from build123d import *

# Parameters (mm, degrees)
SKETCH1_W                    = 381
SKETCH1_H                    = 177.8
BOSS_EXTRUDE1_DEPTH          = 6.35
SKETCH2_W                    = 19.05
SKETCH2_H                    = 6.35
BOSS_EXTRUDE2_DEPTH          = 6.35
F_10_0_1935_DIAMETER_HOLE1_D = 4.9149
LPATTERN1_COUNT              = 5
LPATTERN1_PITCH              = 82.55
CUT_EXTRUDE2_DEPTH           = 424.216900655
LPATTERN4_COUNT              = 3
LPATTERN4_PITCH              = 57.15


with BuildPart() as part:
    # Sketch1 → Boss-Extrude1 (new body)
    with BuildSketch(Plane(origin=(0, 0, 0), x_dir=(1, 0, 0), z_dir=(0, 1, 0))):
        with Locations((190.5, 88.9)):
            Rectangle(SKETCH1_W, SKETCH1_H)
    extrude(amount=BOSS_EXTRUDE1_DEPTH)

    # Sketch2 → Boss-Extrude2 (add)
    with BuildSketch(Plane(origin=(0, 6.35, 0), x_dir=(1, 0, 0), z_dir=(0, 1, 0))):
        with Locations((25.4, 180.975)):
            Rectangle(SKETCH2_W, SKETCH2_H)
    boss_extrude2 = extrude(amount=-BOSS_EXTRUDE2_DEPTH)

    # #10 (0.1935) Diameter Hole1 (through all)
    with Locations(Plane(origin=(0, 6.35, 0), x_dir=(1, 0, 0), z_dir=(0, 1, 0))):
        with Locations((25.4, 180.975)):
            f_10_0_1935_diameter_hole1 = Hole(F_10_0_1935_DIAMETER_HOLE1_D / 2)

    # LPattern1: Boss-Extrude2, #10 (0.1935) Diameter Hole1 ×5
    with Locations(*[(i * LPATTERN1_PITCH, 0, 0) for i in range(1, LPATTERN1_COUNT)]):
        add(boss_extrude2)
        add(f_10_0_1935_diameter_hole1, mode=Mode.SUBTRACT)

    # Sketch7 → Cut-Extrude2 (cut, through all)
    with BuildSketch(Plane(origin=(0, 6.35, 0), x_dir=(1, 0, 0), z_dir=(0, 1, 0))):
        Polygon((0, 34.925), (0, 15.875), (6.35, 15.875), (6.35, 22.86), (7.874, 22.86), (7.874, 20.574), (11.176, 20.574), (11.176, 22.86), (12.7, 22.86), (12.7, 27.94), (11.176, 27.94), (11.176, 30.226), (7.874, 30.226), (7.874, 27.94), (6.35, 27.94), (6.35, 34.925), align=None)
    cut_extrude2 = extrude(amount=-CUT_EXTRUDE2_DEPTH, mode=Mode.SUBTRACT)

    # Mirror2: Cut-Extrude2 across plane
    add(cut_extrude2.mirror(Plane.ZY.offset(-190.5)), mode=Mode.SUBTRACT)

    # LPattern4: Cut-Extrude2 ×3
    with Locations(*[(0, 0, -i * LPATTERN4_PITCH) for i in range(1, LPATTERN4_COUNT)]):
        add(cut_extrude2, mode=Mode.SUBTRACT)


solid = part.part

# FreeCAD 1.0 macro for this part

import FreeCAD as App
import Part
import Sketcher

V = App.Vector
Q = App.Units.Quantity


def add_polygon(sketch, points):
    """Adds a closed chain of lines whose ends are joined by coincident constraints."""
    first, n = sketch.GeometryCount, len(points)
    for a, b in zip(points, points[1:] + points[:1]):
        sketch.addGeometry(Part.LineSegment(App.Vector(*a, 0), App.Vector(*b, 0)), False)
    for i in range(n):
        sketch.addConstraint(Sketcher.Constraint("Coincident", first + i, 2, first + (i + 1) % n, 1))

doc = App.newDocument("Part")
body = doc.addObject("PartDesign::Body", "Body")

sketch1 = body.newObject("Sketcher::SketchObject", "Sketch")
sketch1.AttachmentSupport = (doc.getObject("XZ_Plane"), [""])
sketch1.MapMode = "FlatFace"
add_polygon(sketch1, [(0, -178), (0, 0), (381, 0), (381, -178)])
sketch1.addConstraint([
    Sketcher.Constraint("Vertical", 0),
    Sketcher.Constraint("Horizontal", 1),
    Sketcher.Constraint("Vertical", 2),
    Sketcher.Constraint("Horizontal", 3),
    Sketcher.Constraint("Coincident", 0, 2, -1, 1),
    Sketcher.Constraint("DistanceX", 1, 1, 1, 2, Q("15 in")),
    Sketcher.Constraint("DistanceY", 0, 1, 0, 2, Q("7 in")),
])
pad1 = body.newObject("PartDesign::Pad", "Pad")
pad1.Profile = sketch1
pad1.Length = Q("0.25 in")
pad1.Reversed = True

sketch2 = body.newObject("Sketcher::SketchObject", "Sketch001")
sketch2.AttachmentSupport = (doc.getObject("XZ_Plane"), [""])
sketch2.MapMode = "FlatFace"
sketch2.AttachmentOffset = App.Placement(V(0, 0, -0.25 * 25.4), App.Rotation())
add_polygon(sketch2, [(16, -184), (16, -178), (35, -178), (35, -184)])
sketch2.addConstraint([
    Sketcher.Constraint("Vertical", 0),
    Sketcher.Constraint("Horizontal", 1),
    Sketcher.Constraint("Vertical", 2),
    Sketcher.Constraint("Horizontal", 3),
    Sketcher.Constraint("DistanceY", 0, 2, -1, 1, Q("7 in")),
    Sketcher.Constraint("DistanceX", 1, 1, 1, 2, Q("0.75 in")),
    Sketcher.Constraint("DistanceY", 0, 1, 0, 2, Q("0.25 in")),
    Sketcher.Constraint("DistanceX", -1, 1, 0, 2, Q("0.625 in")),
])
pad2 = body.newObject("PartDesign::Pad", "Pad001")
pad2.Profile = sketch2
pad2.Length = Q("0.25 in")

sketch3 = body.newObject("Sketcher::SketchObject", "Sketch002")
sketch3.AttachmentSupport = (doc.getObject("XZ_Plane"), [""])
sketch3.MapMode = "FlatFace"
sketch3.AttachmentOffset = App.Placement(V(0, 0, -0.25 * 25.4), App.Rotation())
sketch3.addGeometry(Part.Circle(V(25.4, -181, 0), V(0, 0, 1), 2.5), False)
sketch3.addConstraint([
    Sketcher.Constraint("DistanceX", -1, 1, 0, 3, Q("1 in")),
    Sketcher.Constraint("Diameter", 0, Q("0.1935 in")),
    Sketcher.Constraint("DistanceY", 0, 3, -1, 1, Q("7.125 in")),
])
doc.recompute()
hole = body.newObject("PartDesign::Hole", "Hole")
hole.Profile = sketch3
hole.ThreadType = "None"
hole.Diameter = Q("0.1935 in")
hole.DepthType = "ThroughAll"
hole.Reversed = True
doc.recompute()

linearpattern = body.newObject("PartDesign::LinearPattern", "LinearPattern")
linearpattern.Originals = [pad2, hole]
linearpattern.Direction = (doc.getObject("X_Axis"), [""])
linearpattern.Mode = "offset"
linearpattern.Offset = Q("3.25 in")
linearpattern.Occurrences = 5
body.Tip = linearpattern

sketch4 = body.newObject("Sketcher::SketchObject", "Sketch003")
sketch4.AttachmentSupport = (doc.getObject("XZ_Plane"), [""])
sketch4.MapMode = "FlatFace"
sketch4.AttachmentOffset = App.Placement(V(0, 0, -0.25 * 25.4), App.Rotation())
add_polygon(sketch4, [(0, -34.9), (0, -15.9), (6.3, -15.9), (6.3, -22.9), (7.9, -22.9), (7.9, -20.6), (11.2, -20.6), (11.2, -22.9), (12.7, -22.9), (12.7, -27.9), (11.2, -27.9), (11.2, -30.2), (7.9, -30.2), (7.9, -27.9), (6.3, -27.9), (6.3, -34.9)])
sketch4.addConstraint([
    Sketcher.Constraint("Vertical", 0),
    Sketcher.Constraint("Horizontal", 1),
    Sketcher.Constraint("Vertical", 2),
    Sketcher.Constraint("Horizontal", 3),
    Sketcher.Constraint("Vertical", 4),
    Sketcher.Constraint("Horizontal", 5),
    Sketcher.Constraint("Vertical", 6),
    Sketcher.Constraint("Horizontal", 7),
    Sketcher.Constraint("Vertical", 8),
    Sketcher.Constraint("Horizontal", 9),
    Sketcher.Constraint("Vertical", 10),
    Sketcher.Constraint("Horizontal", 11),
    Sketcher.Constraint("Vertical", 12),
    Sketcher.Constraint("Horizontal", 13),
    Sketcher.Constraint("Vertical", 14),
    Sketcher.Constraint("Horizontal", 15),
    Sketcher.Constraint("PointOnObject", 0, 2, -2),
    Sketcher.Constraint("Horizontal", 3, 2, 6, 2),
    Sketcher.Constraint("Horizontal", 9, 2, 12, 2),
    Sketcher.Constraint("Vertical", 6, 2, 9, 2),
    Sketcher.Constraint("Vertical", 4, 2, 11, 2),
    Sketcher.Constraint("Vertical", 2, 2, 13, 2),
    Sketcher.Constraint("Equal", 3, 7),
    Sketcher.Constraint("Equal", 6, 10),
    Sketcher.Constraint("Equal", 2, 14),
    Sketcher.Constraint("DistanceY", 8, 2, 8, 1, Q("0.2 in")),
    Sketcher.Constraint("DistanceX", 1, 1, 1, 2, Q("0.25 in")),
    Sketcher.Constraint("DistanceX", 3, 1, 3, 2, Q("0.06 in")),
    Sketcher.Constraint("DistanceX", 5, 1, 5, 2, Q("0.13 in")),
    Sketcher.Constraint("DistanceY", 0, 1, 0, 2, Q("0.75 in")),
    Sketcher.Constraint("DistanceY", 4, 1, 4, 2, Q("0.09 in")),
    Sketcher.Constraint("DistanceY", 2, 2, -1, 1, Q("0.9 in")),
])
pocket1 = body.newObject("PartDesign::Pocket", "Pocket")
pocket1.Profile = sketch4
pocket1.Type = "ThroughAll"
pocket1.Reversed = True
doc.recompute()

datumplane = body.newObject("PartDesign::Plane", "DatumPlane")
datumplane.AttachmentSupport = (doc.getObject("YZ_Plane"), [""])
datumplane.MapMode = "FlatFace"
datumplane.AttachmentOffset = App.Placement(V(0, 0, 7.5 * 25.4), App.Rotation())
mirrored = body.newObject("PartDesign::Mirrored", "Mirrored")
mirrored.Originals = [pocket1]
mirrored.MirrorPlane = (datumplane, [""])
body.Tip = mirrored
doc.recompute()

linearpattern2 = body.newObject("PartDesign::LinearPattern", "LinearPattern001")
linearpattern2.Originals = [pocket1]
linearpattern2.Direction = (doc.getObject("Z_Axis"), [""])
linearpattern2.Mode = "offset"
linearpattern2.Offset = Q("2.25 in")
linearpattern2.Occurrences = 3
linearpattern2.Reversed = True
body.Tip = linearpattern2

doc.recompute()
